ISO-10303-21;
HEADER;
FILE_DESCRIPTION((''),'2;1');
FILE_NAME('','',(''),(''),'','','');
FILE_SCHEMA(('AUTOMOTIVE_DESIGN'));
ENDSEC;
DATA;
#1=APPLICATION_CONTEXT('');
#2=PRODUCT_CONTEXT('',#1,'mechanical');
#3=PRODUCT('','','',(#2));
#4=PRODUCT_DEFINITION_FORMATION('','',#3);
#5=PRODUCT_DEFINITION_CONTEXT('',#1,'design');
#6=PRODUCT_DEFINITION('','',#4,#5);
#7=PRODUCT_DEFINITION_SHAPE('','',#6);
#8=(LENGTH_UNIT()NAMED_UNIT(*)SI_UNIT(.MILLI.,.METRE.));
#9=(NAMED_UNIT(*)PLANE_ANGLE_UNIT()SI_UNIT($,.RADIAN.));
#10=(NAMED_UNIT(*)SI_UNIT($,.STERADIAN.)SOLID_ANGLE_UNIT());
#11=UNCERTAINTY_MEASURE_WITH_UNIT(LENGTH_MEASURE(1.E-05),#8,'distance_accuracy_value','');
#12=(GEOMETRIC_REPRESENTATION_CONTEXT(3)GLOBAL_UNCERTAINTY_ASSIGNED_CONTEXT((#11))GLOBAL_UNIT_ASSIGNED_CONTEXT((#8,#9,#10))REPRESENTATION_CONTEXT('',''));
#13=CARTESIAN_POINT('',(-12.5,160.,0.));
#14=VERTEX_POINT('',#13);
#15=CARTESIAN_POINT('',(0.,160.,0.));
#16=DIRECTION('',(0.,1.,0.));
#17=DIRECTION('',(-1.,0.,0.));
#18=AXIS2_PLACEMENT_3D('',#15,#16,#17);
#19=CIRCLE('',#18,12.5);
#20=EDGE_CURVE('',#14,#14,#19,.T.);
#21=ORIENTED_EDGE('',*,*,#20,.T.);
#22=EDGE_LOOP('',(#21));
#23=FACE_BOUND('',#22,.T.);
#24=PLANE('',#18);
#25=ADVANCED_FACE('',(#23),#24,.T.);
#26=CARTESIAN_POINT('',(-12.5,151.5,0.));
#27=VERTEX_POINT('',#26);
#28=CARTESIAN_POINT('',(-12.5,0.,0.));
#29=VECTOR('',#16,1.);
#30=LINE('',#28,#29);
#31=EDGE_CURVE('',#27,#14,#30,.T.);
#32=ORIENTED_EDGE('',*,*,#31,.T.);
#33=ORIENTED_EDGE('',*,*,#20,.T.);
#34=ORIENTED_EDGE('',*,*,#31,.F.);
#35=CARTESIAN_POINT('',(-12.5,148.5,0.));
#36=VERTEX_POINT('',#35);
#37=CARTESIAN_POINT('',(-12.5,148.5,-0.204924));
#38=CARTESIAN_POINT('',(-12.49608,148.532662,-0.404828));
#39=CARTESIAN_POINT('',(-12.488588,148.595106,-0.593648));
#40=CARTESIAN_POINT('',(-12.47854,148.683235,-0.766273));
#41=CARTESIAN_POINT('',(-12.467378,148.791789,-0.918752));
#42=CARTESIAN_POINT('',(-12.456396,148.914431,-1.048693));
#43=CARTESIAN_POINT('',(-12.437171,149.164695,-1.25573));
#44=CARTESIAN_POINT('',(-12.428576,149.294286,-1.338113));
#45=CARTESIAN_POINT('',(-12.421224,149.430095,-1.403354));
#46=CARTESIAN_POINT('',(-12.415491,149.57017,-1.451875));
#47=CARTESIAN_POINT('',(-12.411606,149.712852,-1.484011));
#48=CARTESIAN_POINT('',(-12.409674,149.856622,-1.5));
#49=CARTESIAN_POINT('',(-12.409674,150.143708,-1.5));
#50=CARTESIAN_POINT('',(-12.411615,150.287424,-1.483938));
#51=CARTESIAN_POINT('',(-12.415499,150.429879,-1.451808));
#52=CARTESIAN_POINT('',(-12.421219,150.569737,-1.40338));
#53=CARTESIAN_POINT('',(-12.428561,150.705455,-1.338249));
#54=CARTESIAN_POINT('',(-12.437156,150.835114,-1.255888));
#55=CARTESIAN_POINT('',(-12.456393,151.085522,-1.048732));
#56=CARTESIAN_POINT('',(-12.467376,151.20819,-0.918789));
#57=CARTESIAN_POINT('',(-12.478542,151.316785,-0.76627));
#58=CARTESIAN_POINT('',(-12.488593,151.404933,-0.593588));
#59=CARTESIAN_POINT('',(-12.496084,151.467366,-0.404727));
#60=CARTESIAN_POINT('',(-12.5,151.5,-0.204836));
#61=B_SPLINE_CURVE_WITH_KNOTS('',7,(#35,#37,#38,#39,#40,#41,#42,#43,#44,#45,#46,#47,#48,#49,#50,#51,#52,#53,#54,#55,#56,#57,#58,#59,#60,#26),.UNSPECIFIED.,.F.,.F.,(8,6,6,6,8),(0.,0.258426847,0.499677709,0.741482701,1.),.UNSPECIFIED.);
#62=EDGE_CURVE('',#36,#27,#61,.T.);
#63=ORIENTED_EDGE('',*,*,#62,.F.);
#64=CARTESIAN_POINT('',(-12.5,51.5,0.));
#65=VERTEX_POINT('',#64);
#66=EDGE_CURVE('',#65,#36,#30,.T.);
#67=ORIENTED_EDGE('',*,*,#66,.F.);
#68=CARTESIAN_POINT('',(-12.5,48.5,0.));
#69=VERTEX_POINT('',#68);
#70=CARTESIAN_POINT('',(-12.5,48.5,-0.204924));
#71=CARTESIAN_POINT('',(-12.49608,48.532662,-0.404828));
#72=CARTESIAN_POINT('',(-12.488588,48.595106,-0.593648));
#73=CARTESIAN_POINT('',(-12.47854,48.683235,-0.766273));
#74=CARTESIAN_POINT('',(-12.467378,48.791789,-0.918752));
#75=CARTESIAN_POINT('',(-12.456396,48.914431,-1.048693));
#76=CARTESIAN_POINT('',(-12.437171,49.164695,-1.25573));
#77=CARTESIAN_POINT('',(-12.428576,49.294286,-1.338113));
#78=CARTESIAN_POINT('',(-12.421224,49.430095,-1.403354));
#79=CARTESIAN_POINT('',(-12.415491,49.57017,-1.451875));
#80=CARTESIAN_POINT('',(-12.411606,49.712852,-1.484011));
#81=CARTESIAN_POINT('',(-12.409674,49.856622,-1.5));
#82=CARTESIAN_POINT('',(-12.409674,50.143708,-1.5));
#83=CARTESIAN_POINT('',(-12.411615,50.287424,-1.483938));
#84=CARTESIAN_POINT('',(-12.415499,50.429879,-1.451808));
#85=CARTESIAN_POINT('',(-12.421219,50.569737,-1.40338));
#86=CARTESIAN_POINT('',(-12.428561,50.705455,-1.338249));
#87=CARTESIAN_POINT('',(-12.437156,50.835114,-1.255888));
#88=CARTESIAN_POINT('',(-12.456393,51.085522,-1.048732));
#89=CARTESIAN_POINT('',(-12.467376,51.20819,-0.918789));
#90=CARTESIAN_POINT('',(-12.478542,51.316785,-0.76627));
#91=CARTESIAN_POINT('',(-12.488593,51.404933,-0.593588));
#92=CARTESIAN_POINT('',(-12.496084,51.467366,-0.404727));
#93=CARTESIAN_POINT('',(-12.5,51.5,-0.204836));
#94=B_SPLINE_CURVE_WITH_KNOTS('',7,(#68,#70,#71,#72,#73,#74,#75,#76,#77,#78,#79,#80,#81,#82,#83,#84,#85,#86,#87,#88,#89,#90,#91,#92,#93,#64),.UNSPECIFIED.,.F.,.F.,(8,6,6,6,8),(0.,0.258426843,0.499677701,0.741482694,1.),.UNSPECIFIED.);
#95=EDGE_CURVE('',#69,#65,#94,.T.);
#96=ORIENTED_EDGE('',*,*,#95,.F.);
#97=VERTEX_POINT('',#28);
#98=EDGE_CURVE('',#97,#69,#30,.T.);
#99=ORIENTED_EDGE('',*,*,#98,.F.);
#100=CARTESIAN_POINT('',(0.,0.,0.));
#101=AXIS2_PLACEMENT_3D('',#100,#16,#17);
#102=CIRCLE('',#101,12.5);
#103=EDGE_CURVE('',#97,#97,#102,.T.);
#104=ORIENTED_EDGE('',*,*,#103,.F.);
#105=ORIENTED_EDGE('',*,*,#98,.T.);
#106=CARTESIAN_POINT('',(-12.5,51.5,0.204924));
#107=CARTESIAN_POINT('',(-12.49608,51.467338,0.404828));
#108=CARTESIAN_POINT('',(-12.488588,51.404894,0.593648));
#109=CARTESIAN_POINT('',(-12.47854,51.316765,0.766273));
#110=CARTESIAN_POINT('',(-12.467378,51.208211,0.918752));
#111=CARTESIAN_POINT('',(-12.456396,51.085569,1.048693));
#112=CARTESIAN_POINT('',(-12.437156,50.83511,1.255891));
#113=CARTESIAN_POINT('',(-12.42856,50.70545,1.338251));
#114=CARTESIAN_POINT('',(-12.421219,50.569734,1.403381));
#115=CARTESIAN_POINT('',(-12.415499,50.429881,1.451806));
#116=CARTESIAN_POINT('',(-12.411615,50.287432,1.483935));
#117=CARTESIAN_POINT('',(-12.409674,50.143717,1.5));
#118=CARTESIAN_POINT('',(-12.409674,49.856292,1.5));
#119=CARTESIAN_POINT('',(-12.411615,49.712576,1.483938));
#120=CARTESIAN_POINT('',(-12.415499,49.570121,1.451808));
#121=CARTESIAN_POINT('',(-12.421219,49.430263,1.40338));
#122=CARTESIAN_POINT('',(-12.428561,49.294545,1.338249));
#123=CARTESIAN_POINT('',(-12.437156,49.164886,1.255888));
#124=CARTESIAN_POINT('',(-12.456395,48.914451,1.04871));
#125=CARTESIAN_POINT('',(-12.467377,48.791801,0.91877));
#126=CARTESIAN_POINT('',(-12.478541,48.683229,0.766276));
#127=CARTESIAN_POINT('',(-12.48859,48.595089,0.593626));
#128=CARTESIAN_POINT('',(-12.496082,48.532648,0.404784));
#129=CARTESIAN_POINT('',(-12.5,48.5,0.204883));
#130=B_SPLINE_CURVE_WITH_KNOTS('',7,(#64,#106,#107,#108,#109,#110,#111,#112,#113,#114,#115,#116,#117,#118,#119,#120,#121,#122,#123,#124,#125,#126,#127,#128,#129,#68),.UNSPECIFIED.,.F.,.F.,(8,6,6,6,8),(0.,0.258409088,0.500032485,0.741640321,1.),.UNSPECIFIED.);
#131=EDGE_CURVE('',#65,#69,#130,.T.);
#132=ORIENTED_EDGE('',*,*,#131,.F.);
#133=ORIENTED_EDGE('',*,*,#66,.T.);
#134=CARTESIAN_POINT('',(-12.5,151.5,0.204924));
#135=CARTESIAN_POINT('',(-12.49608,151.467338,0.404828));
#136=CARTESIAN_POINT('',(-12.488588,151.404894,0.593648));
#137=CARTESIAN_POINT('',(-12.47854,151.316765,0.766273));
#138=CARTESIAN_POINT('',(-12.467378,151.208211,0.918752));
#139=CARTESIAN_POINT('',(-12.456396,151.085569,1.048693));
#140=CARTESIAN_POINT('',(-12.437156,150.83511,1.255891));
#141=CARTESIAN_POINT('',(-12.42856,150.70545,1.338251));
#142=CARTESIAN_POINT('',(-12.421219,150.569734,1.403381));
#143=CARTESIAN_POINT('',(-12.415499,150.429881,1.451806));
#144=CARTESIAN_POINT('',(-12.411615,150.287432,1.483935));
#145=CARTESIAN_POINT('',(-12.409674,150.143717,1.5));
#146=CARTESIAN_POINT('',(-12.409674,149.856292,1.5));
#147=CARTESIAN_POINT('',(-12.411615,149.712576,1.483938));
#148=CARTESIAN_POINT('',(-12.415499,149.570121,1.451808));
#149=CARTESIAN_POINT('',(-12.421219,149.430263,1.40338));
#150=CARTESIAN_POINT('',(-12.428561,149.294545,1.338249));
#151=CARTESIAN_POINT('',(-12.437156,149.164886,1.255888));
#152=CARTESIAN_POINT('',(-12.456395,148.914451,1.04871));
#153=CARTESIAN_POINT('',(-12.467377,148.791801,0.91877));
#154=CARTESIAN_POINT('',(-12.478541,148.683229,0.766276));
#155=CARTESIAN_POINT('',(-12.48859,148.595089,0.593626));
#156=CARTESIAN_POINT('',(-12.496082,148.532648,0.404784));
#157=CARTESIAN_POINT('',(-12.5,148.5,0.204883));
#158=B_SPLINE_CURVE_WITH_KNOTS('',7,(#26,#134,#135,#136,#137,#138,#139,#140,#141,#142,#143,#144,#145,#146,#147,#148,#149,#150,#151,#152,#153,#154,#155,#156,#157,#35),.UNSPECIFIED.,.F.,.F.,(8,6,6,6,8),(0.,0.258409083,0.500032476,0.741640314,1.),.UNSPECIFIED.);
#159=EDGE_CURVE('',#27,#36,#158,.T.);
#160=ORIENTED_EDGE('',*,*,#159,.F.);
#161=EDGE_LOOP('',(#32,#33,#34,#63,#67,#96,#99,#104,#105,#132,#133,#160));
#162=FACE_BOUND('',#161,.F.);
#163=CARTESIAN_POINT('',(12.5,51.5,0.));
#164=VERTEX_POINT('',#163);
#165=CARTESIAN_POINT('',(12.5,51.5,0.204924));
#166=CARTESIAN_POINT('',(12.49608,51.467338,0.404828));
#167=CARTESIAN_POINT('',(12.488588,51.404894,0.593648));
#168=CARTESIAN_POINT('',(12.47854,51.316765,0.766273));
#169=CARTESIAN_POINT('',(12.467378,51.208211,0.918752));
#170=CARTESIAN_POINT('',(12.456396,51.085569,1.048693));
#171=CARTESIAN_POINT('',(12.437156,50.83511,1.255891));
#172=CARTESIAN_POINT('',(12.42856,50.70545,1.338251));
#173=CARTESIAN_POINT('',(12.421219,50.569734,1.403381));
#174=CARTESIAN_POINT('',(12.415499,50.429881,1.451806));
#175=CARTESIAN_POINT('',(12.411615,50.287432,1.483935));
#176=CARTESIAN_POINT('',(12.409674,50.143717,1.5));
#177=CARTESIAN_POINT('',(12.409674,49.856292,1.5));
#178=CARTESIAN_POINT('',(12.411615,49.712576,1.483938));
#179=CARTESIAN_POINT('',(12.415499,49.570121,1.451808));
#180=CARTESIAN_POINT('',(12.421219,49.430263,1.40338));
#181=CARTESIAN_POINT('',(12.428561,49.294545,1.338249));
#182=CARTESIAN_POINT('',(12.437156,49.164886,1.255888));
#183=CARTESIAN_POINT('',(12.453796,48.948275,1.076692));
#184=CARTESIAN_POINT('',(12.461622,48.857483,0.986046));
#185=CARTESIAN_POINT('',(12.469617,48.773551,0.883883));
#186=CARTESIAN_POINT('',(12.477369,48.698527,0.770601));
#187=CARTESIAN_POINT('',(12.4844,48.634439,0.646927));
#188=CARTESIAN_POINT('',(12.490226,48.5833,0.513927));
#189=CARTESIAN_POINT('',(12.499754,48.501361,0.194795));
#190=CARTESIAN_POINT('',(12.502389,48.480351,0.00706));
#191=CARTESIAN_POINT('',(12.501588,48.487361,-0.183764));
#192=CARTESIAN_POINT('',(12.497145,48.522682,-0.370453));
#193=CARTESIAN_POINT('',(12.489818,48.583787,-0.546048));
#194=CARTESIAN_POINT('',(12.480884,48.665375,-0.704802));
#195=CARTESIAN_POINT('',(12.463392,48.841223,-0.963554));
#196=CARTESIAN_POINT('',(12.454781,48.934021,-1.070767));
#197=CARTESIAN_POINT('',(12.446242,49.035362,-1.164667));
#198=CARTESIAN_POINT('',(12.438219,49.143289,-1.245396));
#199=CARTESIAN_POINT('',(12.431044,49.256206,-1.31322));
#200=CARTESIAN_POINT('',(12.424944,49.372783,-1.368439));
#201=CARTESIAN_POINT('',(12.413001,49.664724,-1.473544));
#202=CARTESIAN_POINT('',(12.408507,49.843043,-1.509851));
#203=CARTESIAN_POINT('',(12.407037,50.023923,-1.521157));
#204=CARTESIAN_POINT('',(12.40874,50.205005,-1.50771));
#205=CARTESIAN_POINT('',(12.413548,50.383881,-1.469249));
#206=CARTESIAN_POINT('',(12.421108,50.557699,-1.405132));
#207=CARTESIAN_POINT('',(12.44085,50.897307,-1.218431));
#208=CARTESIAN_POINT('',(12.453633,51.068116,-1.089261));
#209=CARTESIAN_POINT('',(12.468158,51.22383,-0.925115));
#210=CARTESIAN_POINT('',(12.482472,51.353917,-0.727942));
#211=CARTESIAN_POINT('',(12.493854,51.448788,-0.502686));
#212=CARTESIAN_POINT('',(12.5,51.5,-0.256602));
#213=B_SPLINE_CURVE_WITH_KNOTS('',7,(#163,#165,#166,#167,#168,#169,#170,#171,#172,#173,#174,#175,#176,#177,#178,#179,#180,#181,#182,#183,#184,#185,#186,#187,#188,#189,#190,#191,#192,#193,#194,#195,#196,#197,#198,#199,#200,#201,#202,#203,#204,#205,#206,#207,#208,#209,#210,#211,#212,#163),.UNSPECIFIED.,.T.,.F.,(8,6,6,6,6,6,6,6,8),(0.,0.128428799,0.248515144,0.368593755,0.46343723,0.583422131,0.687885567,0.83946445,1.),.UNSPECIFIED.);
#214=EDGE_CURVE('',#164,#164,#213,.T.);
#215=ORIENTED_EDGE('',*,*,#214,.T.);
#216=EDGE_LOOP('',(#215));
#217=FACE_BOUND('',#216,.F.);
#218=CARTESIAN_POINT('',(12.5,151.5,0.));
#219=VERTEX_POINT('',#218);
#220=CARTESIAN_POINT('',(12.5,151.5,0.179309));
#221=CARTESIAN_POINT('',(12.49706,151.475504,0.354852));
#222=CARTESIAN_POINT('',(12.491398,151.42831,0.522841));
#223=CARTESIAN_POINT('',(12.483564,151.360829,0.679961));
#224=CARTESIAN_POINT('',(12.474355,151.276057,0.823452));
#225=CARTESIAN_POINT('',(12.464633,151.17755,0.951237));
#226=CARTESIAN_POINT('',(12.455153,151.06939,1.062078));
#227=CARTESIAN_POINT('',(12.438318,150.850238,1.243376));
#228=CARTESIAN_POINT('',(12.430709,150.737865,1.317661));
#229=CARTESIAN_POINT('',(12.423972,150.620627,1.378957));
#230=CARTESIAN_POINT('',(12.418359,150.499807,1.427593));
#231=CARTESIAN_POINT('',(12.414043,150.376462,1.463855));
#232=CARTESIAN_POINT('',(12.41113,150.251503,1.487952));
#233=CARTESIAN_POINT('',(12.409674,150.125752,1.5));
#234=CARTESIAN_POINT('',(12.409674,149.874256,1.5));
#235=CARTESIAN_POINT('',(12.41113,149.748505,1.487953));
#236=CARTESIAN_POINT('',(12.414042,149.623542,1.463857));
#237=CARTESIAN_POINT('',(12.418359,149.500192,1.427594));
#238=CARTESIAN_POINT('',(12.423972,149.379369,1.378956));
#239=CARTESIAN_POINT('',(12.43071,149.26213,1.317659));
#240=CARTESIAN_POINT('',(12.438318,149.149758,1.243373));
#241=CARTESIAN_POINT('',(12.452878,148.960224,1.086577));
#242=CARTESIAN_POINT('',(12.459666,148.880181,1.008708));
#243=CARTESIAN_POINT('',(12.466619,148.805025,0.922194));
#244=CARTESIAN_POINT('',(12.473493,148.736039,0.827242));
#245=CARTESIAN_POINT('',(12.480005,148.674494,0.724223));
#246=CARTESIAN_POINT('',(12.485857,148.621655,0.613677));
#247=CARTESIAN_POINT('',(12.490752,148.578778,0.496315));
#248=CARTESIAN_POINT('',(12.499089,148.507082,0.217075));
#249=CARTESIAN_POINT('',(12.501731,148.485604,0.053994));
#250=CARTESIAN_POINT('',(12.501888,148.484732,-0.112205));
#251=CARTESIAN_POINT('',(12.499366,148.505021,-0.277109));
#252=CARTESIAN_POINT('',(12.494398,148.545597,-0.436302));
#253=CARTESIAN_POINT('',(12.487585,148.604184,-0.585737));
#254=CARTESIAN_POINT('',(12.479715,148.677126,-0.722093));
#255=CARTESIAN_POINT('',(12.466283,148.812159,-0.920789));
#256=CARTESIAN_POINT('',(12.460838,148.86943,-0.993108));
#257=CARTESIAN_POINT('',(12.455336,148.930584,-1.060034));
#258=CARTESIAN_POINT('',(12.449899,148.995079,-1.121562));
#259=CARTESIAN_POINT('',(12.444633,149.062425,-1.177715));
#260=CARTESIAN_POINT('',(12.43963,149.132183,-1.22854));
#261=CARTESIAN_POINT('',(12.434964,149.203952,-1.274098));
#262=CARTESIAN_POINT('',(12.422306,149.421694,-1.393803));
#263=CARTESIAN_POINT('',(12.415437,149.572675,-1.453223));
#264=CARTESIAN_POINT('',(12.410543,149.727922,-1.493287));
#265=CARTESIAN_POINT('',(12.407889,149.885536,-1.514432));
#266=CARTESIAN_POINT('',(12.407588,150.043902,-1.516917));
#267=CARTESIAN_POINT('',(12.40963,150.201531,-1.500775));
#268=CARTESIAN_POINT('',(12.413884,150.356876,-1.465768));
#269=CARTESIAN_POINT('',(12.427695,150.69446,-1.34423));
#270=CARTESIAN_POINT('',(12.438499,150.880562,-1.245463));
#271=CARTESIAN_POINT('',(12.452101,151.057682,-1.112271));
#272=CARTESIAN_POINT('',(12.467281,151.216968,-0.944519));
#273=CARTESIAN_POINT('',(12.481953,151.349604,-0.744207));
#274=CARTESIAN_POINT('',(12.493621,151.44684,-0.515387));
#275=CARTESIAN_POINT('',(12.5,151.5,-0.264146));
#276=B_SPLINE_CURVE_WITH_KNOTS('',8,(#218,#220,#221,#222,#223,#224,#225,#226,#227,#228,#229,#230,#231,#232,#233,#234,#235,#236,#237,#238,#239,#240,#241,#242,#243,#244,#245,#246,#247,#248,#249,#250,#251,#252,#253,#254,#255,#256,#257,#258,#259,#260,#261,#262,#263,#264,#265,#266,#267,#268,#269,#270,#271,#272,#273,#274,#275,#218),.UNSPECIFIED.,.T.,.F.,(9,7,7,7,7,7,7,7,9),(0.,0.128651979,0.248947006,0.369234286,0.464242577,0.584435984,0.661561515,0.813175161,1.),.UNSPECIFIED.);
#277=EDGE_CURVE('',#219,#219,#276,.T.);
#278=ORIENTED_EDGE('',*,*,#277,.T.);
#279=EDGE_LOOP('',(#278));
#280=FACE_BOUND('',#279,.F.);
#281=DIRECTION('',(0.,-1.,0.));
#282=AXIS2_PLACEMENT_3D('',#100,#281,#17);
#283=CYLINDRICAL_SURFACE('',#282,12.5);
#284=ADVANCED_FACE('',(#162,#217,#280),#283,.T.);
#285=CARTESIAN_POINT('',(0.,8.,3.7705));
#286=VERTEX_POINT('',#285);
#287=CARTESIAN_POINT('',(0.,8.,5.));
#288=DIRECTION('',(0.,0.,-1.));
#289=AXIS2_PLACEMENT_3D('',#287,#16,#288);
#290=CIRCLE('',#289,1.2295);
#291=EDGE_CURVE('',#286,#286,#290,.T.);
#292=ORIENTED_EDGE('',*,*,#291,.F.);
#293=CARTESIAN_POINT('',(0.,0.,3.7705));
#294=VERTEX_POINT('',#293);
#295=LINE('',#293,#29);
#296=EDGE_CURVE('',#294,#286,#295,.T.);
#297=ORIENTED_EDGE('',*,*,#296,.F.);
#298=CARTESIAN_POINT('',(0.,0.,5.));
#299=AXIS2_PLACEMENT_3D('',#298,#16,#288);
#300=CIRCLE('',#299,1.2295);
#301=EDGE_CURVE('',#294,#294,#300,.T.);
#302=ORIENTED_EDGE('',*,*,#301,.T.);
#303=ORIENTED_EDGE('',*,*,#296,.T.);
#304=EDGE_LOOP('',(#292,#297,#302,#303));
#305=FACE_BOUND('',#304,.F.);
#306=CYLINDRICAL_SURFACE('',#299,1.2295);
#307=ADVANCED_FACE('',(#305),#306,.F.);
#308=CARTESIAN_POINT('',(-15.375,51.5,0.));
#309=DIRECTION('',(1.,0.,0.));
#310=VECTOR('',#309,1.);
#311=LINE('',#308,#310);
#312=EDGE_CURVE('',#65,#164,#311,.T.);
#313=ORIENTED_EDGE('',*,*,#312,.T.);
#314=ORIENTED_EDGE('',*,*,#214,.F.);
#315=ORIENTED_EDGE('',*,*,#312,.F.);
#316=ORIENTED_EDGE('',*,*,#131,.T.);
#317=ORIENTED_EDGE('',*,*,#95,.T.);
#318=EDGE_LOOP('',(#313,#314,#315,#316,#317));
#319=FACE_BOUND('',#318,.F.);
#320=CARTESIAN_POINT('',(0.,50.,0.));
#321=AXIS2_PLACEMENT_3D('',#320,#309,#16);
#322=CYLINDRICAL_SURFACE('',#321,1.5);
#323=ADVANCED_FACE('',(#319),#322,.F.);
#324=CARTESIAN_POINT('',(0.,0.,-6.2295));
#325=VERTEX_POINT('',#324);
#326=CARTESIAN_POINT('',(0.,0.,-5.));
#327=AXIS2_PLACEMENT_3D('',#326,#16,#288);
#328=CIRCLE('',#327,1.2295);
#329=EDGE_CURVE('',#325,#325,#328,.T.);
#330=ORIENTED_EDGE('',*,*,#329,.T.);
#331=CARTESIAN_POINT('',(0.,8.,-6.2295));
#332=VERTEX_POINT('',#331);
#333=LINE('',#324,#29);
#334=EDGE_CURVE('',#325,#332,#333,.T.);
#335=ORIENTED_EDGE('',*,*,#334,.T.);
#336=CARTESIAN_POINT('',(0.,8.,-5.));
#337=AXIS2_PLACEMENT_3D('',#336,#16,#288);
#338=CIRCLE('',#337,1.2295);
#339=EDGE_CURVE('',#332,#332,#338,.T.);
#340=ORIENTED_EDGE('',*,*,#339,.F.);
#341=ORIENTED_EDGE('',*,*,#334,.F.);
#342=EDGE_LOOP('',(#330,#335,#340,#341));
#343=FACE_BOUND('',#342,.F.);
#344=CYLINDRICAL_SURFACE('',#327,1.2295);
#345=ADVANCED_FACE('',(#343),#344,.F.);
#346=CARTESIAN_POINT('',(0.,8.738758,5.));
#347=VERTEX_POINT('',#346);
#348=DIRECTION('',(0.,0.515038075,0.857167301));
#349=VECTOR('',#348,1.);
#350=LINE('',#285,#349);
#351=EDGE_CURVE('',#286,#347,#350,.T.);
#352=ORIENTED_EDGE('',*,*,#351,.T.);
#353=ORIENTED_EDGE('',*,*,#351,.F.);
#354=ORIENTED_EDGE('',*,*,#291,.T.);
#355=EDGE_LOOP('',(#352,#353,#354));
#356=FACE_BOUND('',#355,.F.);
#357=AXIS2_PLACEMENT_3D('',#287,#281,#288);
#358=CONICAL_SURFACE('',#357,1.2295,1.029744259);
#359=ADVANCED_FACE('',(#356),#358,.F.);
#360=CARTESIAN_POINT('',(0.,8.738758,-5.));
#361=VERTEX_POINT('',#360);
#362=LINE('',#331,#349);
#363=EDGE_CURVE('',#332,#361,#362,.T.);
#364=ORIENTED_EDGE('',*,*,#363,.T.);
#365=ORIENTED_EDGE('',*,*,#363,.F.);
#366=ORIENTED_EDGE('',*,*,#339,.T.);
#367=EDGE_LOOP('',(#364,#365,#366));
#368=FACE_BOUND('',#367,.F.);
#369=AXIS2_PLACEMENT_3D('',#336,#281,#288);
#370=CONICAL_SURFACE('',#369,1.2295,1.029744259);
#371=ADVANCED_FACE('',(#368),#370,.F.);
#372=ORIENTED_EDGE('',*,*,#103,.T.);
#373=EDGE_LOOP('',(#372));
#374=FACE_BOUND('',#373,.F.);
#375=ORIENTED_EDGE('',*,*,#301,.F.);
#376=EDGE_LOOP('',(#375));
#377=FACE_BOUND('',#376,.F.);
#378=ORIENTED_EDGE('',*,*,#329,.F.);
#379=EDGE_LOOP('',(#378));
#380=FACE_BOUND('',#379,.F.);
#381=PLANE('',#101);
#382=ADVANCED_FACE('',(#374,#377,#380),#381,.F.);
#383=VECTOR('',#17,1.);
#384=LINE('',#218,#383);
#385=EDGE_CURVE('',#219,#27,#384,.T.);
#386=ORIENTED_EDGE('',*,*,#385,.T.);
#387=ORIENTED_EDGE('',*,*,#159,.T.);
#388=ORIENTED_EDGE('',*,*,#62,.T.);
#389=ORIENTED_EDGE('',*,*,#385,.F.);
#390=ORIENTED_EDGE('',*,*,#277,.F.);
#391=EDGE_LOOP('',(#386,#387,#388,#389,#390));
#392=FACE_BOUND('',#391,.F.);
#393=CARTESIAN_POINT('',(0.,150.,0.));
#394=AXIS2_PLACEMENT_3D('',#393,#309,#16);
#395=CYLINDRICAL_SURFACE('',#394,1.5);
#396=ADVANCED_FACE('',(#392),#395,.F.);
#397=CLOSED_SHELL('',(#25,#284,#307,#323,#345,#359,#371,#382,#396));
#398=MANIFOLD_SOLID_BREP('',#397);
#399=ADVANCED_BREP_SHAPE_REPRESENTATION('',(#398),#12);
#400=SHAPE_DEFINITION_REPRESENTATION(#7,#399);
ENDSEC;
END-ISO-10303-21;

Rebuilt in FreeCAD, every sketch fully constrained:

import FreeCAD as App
import Part
import Sketcher
from FreeCAD import Vector
Q = App.Units.Quantity

doc = App.newDocument("Part")
body = doc.addObject("PartDesign::Body", "Body")

sketch1 = doc.addObject("Sketcher::SketchObject", "Sketch")
body.addObject(sketch1)
sketch1.AttachmentSupport = (doc.XZ_Plane, [""])
sketch1.MapMode = "FlatFace"
sketch1.addGeometry(Part.Circle(Vector(0, 0, 0), Vector(0, 0, 1), 12), False)
sketch1.addConstraint(Sketcher.Constraint("Coincident", 0, 3, -1, 1))
sketch1.addConstraint(Sketcher.Constraint("Diameter", 0, Q("25 mm")))
pad1 = doc.addObject("PartDesign::Pad", "Pad")
body.addObject(pad1)
pad1.Profile = sketch1
pad1.Length = 160
pad1.Reversed = True

sketch2 = doc.addObject("Sketcher::SketchObject", "Sketch001")
body.addObject(sketch2)
sketch2.AttachmentSupport = (doc.XZ_Plane, [""])
sketch2.MapMode = "FlatFace"
sketch2.addGeometry(Part.Circle(Vector(0, 5, 0), Vector(0, 0, 1), 1.2), False)
sketch2.addGeometry(Part.Circle(Vector(0, -5, 0), Vector(0, 0, 1), 1.2), False)
sketch2.addConstraint(Sketcher.Constraint("Equal", 0, 1))
sketch2.addConstraint(Sketcher.Constraint("Symmetric", 0, 3, 1, 3, -1, 1))
sketch2.addConstraint(Sketcher.Constraint("PointOnObject", 0, 3, -2))
sketch2.addConstraint(Sketcher.Constraint("Diameter", 0, Q("2.459 mm")))
sketch2.addConstraint(Sketcher.Constraint("DistanceY", -1, 1, 0, 3, Q("5 mm")))
doc.recompute()
hole = doc.addObject("PartDesign::Hole", "Hole")
body.addObject(hole)
hole.Profile = sketch2
hole.ThreadType = "None"
hole.Diameter = 2.459
hole.DepthType = "Dimension"
hole.Depth = 8
hole.DrillPoint = "Angled"
hole.DrillPointAngle = 118

sketch3 = doc.addObject("Sketcher::SketchObject", "Sketch002")
body.addObject(sketch3)
sketch3.AttachmentSupport = (doc.YZ_Plane, [""])
sketch3.MapMode = "FlatFace"
sketch3.addGeometry(Part.Circle(Vector(150, 0, 0), Vector(0, 0, 1), 1.5), False)
sketch3.addGeometry(Part.Circle(Vector(50, 0, 0), Vector(0, 0, 1), 1.5), False)
sketch3.addConstraint(Sketcher.Constraint("Equal", 0, 1))
sketch3.addConstraint(Sketcher.Constraint("PointOnObject", 0, 3, -1))
sketch3.addConstraint(Sketcher.Constraint("PointOnObject", 1, 3, -1))
sketch3.addConstraint(Sketcher.Constraint("Diameter", 0, Q("3 mm")))
sketch3.addConstraint(Sketcher.Constraint("DistanceX", -1, 1, 1, 3, Q("50 mm")))
sketch3.addConstraint(Sketcher.Constraint("DistanceX", -1, 1, 0, 3, Q("150 mm")))
pocket1 = doc.addObject("PartDesign::Pocket", "Pocket")
body.addObject(pocket1)
pocket1.Profile = sketch3
pocket1.Length = 30.75
pocket1.Midplane = True

doc.recompute()
